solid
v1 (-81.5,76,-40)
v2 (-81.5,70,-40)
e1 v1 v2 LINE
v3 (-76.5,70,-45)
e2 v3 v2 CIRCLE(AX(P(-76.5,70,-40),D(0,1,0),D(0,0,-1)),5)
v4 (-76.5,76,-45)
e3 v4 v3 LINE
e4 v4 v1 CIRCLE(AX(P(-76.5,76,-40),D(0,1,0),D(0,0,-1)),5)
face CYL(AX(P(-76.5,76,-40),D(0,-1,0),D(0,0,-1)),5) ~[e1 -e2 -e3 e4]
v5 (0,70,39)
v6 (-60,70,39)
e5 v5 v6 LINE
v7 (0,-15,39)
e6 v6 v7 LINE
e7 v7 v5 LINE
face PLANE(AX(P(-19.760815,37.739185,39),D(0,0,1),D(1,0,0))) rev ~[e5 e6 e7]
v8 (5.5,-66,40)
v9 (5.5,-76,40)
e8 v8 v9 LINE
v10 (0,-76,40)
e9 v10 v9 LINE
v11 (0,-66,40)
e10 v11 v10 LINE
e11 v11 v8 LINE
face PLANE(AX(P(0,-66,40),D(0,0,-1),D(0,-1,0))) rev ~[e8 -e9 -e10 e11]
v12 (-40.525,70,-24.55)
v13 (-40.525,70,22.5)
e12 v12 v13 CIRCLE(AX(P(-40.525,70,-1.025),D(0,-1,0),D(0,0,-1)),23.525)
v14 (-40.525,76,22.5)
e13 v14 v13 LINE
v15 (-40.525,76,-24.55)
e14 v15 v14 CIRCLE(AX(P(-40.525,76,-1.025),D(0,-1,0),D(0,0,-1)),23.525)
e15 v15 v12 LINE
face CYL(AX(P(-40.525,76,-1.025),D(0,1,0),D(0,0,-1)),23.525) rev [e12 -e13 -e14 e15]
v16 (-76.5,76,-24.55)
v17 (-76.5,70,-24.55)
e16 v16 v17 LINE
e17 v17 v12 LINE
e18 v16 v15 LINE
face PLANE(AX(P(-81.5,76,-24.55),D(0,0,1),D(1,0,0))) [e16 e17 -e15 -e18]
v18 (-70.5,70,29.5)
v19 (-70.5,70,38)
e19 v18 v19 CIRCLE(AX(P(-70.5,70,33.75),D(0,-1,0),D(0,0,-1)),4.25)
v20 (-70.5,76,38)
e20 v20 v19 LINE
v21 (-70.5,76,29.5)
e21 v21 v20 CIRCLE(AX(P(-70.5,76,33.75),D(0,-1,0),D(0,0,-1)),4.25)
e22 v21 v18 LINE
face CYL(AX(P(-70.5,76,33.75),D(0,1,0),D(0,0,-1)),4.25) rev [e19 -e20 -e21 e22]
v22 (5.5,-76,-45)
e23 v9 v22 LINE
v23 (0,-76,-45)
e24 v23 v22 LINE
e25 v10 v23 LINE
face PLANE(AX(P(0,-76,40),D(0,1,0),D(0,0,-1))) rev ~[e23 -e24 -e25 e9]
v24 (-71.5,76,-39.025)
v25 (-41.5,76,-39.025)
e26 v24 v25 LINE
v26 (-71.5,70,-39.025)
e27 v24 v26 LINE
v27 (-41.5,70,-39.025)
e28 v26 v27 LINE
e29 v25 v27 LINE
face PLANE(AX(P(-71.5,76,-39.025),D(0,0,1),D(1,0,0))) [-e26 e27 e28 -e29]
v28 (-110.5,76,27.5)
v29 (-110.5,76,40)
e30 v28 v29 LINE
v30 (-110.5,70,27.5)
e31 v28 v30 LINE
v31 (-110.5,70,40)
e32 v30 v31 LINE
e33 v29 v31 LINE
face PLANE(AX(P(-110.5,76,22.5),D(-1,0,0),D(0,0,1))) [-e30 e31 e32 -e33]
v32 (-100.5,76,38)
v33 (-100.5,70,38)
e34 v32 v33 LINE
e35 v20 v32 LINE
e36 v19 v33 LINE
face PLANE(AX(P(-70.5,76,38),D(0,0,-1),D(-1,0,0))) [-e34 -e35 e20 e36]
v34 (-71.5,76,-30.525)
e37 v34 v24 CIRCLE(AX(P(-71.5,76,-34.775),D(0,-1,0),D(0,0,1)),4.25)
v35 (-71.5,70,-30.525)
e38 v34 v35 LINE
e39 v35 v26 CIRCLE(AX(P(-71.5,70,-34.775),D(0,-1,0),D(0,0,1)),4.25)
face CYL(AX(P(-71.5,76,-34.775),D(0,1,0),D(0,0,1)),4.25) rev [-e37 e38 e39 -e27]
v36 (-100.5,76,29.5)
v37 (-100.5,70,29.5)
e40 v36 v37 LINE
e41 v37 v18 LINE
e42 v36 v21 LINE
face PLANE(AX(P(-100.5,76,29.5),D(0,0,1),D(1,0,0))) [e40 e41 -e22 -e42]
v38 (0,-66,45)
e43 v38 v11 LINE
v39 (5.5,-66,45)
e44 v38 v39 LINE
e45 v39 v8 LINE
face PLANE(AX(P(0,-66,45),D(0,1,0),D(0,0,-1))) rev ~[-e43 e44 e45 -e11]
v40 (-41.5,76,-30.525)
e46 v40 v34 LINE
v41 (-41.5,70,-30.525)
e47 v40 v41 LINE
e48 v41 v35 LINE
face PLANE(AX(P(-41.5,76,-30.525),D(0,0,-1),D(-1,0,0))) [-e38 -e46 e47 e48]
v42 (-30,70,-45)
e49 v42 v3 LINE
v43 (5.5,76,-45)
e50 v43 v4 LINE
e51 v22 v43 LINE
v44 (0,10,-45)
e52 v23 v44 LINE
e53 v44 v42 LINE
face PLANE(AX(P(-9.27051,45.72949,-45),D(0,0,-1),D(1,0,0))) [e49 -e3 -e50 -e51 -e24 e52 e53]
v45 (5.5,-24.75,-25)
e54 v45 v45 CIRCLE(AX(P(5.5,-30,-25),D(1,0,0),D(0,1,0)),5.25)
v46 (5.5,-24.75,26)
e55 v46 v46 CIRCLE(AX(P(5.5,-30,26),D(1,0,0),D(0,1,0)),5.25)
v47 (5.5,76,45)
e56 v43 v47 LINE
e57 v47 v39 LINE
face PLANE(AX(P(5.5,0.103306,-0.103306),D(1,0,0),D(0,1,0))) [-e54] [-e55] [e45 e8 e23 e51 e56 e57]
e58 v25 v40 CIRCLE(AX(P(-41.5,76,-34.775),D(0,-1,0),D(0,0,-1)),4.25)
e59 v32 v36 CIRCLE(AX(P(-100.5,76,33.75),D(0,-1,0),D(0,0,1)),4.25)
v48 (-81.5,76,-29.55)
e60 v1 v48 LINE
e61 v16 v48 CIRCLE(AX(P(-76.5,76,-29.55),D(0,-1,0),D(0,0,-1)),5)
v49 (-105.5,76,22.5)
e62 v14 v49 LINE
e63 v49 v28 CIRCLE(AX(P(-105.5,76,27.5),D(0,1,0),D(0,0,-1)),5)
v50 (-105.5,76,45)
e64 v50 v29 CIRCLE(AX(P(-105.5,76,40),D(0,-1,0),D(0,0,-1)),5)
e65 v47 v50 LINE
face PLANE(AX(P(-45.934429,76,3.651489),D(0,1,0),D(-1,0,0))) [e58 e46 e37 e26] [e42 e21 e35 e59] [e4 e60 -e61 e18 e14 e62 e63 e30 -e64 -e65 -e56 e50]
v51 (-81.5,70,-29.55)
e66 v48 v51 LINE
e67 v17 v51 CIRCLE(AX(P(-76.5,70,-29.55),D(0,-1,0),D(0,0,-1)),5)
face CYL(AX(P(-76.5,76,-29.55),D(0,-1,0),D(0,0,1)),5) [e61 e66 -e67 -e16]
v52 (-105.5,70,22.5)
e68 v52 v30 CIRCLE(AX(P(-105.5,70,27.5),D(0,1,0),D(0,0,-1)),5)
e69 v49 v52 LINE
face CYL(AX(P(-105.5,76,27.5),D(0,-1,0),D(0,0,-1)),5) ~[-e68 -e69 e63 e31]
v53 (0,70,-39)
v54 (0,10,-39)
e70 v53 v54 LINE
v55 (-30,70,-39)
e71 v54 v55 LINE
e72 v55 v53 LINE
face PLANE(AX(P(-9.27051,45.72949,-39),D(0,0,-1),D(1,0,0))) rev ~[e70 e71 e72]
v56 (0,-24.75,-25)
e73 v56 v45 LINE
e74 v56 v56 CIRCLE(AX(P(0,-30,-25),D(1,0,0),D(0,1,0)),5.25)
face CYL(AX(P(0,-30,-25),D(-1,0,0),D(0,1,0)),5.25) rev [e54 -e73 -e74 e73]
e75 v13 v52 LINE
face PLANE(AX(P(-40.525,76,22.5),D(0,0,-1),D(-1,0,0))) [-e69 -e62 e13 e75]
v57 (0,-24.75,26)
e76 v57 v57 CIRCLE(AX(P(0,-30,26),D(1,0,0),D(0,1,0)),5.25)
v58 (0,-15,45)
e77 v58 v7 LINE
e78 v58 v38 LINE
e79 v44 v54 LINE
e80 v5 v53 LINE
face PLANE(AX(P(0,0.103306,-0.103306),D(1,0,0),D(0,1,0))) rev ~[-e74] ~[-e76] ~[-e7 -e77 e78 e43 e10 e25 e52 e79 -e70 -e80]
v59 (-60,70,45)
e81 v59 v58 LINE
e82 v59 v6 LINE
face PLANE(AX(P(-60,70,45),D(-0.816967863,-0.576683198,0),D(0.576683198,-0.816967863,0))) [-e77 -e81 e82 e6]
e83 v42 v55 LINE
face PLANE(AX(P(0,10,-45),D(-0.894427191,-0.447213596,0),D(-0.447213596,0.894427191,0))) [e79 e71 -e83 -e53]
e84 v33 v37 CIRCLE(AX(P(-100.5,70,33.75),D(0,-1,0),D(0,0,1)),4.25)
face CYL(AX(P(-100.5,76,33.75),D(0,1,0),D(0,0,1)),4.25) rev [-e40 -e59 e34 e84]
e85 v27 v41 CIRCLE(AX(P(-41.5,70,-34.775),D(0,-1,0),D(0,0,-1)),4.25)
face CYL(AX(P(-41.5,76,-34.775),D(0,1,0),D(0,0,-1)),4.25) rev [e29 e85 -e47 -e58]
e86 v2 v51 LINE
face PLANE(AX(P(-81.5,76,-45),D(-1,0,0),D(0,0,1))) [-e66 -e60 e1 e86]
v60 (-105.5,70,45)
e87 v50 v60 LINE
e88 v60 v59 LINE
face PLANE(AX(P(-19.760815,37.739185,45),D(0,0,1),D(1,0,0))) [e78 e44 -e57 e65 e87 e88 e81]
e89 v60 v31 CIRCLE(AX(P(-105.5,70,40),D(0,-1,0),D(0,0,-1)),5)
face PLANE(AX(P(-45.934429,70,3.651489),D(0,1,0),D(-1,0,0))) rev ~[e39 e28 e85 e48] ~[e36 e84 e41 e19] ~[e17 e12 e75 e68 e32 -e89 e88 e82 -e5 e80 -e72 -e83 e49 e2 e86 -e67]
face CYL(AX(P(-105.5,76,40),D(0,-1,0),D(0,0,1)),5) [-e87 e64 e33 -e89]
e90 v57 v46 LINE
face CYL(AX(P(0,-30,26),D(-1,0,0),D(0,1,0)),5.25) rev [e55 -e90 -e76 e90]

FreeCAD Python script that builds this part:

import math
import FreeCAD as App
import Part
import Sketcher
from FreeCAD import Vector


def edges_at(feature, points):
    """Names of the edges that pass closest to the given points."""
    edges = feature.Shape.Edges
    near = lambda p: min(range(len(edges)), key=lambda i: edges[i].distToShape(Part.Vertex(*p))[0])
    return sorted({f"Edge{near(p) + 1}" for p in points})

doc = App.newDocument("Part")
body = doc.addObject("PartDesign::Body", "Body")

# Sketch on YZ plane
sketch1 = body.newObject("Sketcher::SketchObject", "Sketch")
sketch1.AttachmentSupport = (doc.getObject("YZ_Plane"), [""])
sketch1.MapMode = "FlatFace"
sketch1.addGeometry([
    Part.LineSegment(Vector(76, -45, 0), Vector(76, 45, 0)),  # 0
    Part.LineSegment(Vector(76, 45, 0), Vector(-66, 45, 0)),  # 1
    Part.LineSegment(Vector(-66, 45, 0), Vector(-66, 40, 0)),  # 2
    Part.LineSegment(Vector(-66, 40, 0), Vector(-76, 40, 0)),  # 3
    Part.LineSegment(Vector(-76, 40, 0), Vector(-76, -45, 0)),  # 4
    Part.LineSegment(Vector(-76, -45, 0), Vector(76, -45, 0)),  # 5
    Part.Circle(Vector(-30, -25, 0), Vector(0, 0, 1), 5.25),  # 6
    Part.Circle(Vector(-30, 26, 0), Vector(0, 0, 1), 5.25),  # 7
], False)
sketch1.addConstraint([
    Sketcher.Constraint("Coincident", 0, 2, 1, 1),
    Sketcher.Constraint("Coincident", 1, 2, 2, 1),
    Sketcher.Constraint("Coincident", 2, 2, 3, 1),
    Sketcher.Constraint("Coincident", 3, 2, 4, 1),
    Sketcher.Constraint("Coincident", 4, 2, 5, 1),
    Sketcher.Constraint("Coincident", 5, 2, 0, 1),
    Sketcher.Constraint("Vertical", 0),
    Sketcher.Constraint("Horizontal", 1),
    Sketcher.Constraint("Vertical", 2),
    Sketcher.Constraint("Horizontal", 3),
    Sketcher.Constraint("Vertical", 4),
    Sketcher.Constraint("Horizontal", 5),
    Sketcher.Constraint("Equal", 6, 7),
    Sketcher.Constraint("Symmetric", 0, 2, 4, 2, -1, 1),
    Sketcher.Constraint("Vertical", 6, 3, 7, 3),
    Sketcher.Constraint("Diameter", 6, 10.5),
    Sketcher.Constraint("DistanceX", 1, 2, 1, 1, 142.0),
    Sketcher.Constraint("DistanceX", 3, 2, 3, 1, 10.0),
    Sketcher.Constraint("DistanceY", 0, 1, 0, 2, 90.0),
    Sketcher.Constraint("DistanceY", 2, 2, 2, 1, 5.0),
    Sketcher.Constraint("DistanceX", 6, 3, -1, 1, 30.0),
    Sketcher.Constraint("DistanceY", 6, 3, -1, 1, 25.0),
    Sketcher.Constraint("DistanceY", -1, 1, 7, 3, 26.0),
])
pad1 = body.newObject("PartDesign::Pad", "Pad")
pad1.Profile = sketch1
pad1.Length = 5.5

# Sketch on XZ plane
sketch2 = body.newObject("Sketcher::SketchObject", "Sketch001")
sketch2.AttachmentSupport = (doc.getObject("XZ_Plane"), [""])
sketch2.MapMode = "FlatFace"
sketch2.AttachmentOffset = App.Placement(Vector(0, 0, -76), App.Rotation())
sketch2.addGeometry([
    Part.LineSegment(Vector(-110.5, 45, 0), Vector(0, 45, 0)),  # 0
    Part.LineSegment(Vector(0, 45, 0), Vector(0, -45, 0)),  # 1
    Part.LineSegment(Vector(0, -45, 0), Vector(-81.5, -45, 0)),  # 2
    Part.LineSegment(Vector(-81.5, -45, 0), Vector(-81.5, -24.55, 0)),  # 3
    Part.LineSegment(Vector(-81.5, -24.55, 0), Vector(-40.525, -24.55, 0)),  # 4
    Part.ArcOfCircle(Part.Circle(Vector(-40.525, -1.025, 0), Vector(0, 0, 1), 23.525), math.radians(-90), math.radians(90)),  # 5
    Part.LineSegment(Vector(-40.525, 22.5, 0), Vector(-110.5, 22.5, 0)),  # 6
    Part.LineSegment(Vector(-110.5, 22.5, 0), Vector(-110.5, 45, 0)),  # 7
    Part.LineSegment(Vector(-41.5, -30.525, 0), Vector(-71.5, -30.525, 0)),  # 8
    Part.ArcOfCircle(Part.Circle(Vector(-71.5, -34.775, 0), Vector(0, 0, 1), 4.25), math.radians(90), math.radians(270)),  # 9
    Part.LineSegment(Vector(-71.5, -39.025, 0), Vector(-41.5, -39.025, 0)),  # 10
    Part.ArcOfCircle(Part.Circle(Vector(-41.5, -34.775, 0), Vector(0, 0, 1), 4.25), math.radians(-90), math.radians(90)),  # 11
    Part.LineSegment(Vector(-70.5, 38, 0), Vector(-100.5, 38, 0)),  # 12
    Part.ArcOfCircle(Part.Circle(Vector(-100.5, 33.75, 0), Vector(0, 0, 1), 4.25), math.radians(90), math.radians(270)),  # 13
    Part.LineSegment(Vector(-100.5, 29.5, 0), Vector(-70.5, 29.5, 0)),  # 14
    Part.ArcOfCircle(Part.Circle(Vector(-70.5, 33.75, 0), Vector(0, 0, 1), 4.25), math.radians(-90), math.radians(90)),  # 15
], False)
sketch2.addConstraint([
    Sketcher.Constraint("Coincident", 0, 2, 1, 1),
    Sketcher.Constraint("Coincident", 1, 2, 2, 1),
    Sketcher.Constraint("Coincident", 2, 2, 3, 1),
    Sketcher.Constraint("Coincident", 3, 2, 4, 1),
    Sketcher.Constraint("Tangent", 4, 2, 5, 1),
    Sketcher.Constraint("Tangent", 5, 2, 6, 1),
    Sketcher.Constraint("Coincident", 6, 2, 7, 1),
    Sketcher.Constraint("Coincident", 7, 2, 0, 1),
    Sketcher.Constraint("Tangent", 8, 2, 9, 1),
    Sketcher.Constraint("Tangent", 9, 2, 10, 1),
    Sketcher.Constraint("Tangent", 10, 2, 11, 1),
    Sketcher.Constraint("Tangent", 11, 2, 8, 1),
    Sketcher.Constraint("Tangent", 12, 2, 13, 1),
    Sketcher.Constraint("Tangent", 13, 2, 14, 1),
    Sketcher.Constraint("Tangent", 14, 2, 15, 1),
    Sketcher.Constraint("Tangent", 15, 2, 12, 1),
    Sketcher.Constraint("Horizontal", 0),
    Sketcher.Constraint("Vertical", 1),
    Sketcher.Constraint("Horizontal", 2),
    Sketcher.Constraint("Vertical", 3),
    Sketcher.Constraint("Horizontal", 4),
    Sketcher.Constraint("Horizontal", 6),
    Sketcher.Constraint("Vertical", 7),
    Sketcher.Constraint("Horizontal", 8),
    Sketcher.Constraint("Horizontal", 10),
    Sketcher.Constraint("Horizontal", 12),
    Sketcher.Constraint("Horizontal", 14),
    Sketcher.Constraint("Equal", 11, 13),
    Sketcher.Constraint("Symmetric", 0, 2, 1, 2, -1, 1),
    Sketcher.Constraint("Equal", 10, 12),
    Sketcher.Constraint("DistanceX", 8, 2, 8, 1, 30.0),
    Sketcher.Constraint("DistanceY", 1, 2, 1, 1, 90.0),
    Sketcher.Constraint("Radius", 9, 4.25),
    Sketcher.Constraint("DistanceX", 0, 1, 0, 2, 110.5),
    Sketcher.Constraint("DistanceX", 2, 2, 2, 1, 81.5),
    Sketcher.Constraint("DistanceY", 7, 1, 7, 2, 22.5),
    Sketcher.Constraint("DistanceY", -1, 1, 12, 2, 38.0),
    Sketcher.Constraint("Radius", 5, 23.525),
    Sketcher.Constraint("DistanceX", 13, 3, 9, 3, 29.0),
    Sketcher.Constraint("DistanceX", 2, 2, 9, 3, 10.0),
    Sketcher.Constraint("DistanceY", 11, 2, 5, 3, 29.5),
    Sketcher.Constraint("DistanceX", 4, 1, 4, 2, 40.975),
])
pad2 = body.newObject("PartDesign::Pad", "Pad001")
pad2.Profile = sketch2
pad2.Length = 6

# Sketch on XY plane
sketch3 = body.newObject("Sketcher::SketchObject", "Sketch002")
sketch3.AttachmentSupport = (doc.getObject("XY_Plane"), [""])
sketch3.MapMode = "FlatFace"
sketch3.AttachmentOffset = App.Placement(Vector(0, 0, 45), App.Rotation())
sketch3.addGeometry([
    Part.LineSegment(Vector(0, -15, 0), Vector(0, 70, 0)),
    Part.LineSegment(Vector(0, 70, 0), Vector(-60, 70, 0)),
    Part.LineSegment(Vector(-60, 70, 0), Vector(0, -15, 0)),
], False)
sketch3.addConstraint([
    Sketcher.Constraint("Coincident", 0, 2, 1, 1),
    Sketcher.Constraint("Coincident", 1, 2, 2, 1),
    Sketcher.Constraint("Coincident", 2, 2, 0, 1),
    Sketcher.Constraint("Vertical", 0),
    Sketcher.Constraint("Horizontal", 1),
    Sketcher.Constraint("PointOnObject", 0, 2, -2),
    Sketcher.Constraint("DistanceX", 1, 2, 1, 1, 60.0),
    Sketcher.Constraint("DistanceY", 0, 1, 0, 2, 85.0),
    Sketcher.Constraint("DistanceY", -1, 1, 0, 2, 70.0),
])
pad3 = body.newObject("PartDesign::Pad", "Pad002")
pad3.Profile = sketch3
pad3.Length = 6
pad3.Reversed = True

# Sketch on XY plane
sketch4 = body.newObject("Sketcher::SketchObject", "Sketch003")
sketch4.AttachmentSupport = (doc.getObject("XY_Plane"), [""])
sketch4.MapMode = "FlatFace"
sketch4.AttachmentOffset = App.Placement(Vector(0, 0, -45), App.Rotation())
sketch4.addGeometry([
    Part.LineSegment(Vector(-30, 70, 0), Vector(0, 70, 0)),
    Part.LineSegment(Vector(0, 70, 0), Vector(0, 10, 0)),
    Part.LineSegment(Vector(0, 10, 0), Vector(-30, 70, 0)),
], False)
sketch4.addConstraint([
    Sketcher.Constraint("Coincident", 0, 2, 1, 1),
    Sketcher.Constraint("Coincident", 1, 2, 2, 1),
    Sketcher.Constraint("Coincident", 2, 2, 0, 1),
    Sketcher.Constraint("Horizontal", 0),
    Sketcher.Constraint("Vertical", 1),
    Sketcher.Constraint("PointOnObject", 0, 2, -2),
    Sketcher.Constraint("DistanceX", 0, 1, 0, 2, 30.0),
    Sketcher.Constraint("DistanceY", 1, 2, 1, 1, 60.0),
    Sketcher.Constraint("DistanceY", -1, 1, 0, 2, 70.0),
])
pad4 = body.newObject("PartDesign::Pad", "Pad003")
pad4.Profile = sketch4
pad4.Length = 6
doc.recompute()

fillet = body.newObject("PartDesign::Fillet", "Fillet")
fillet.Base = (pad4, edges_at(pad4, [
    (-110.5, 73, 45),
    (-110.5, 73, 22.5),
    (-81.5, 73, -24.55),
    (-81.5, 73, -45),
]))
fillet.Radius = 5

doc.recompute()
